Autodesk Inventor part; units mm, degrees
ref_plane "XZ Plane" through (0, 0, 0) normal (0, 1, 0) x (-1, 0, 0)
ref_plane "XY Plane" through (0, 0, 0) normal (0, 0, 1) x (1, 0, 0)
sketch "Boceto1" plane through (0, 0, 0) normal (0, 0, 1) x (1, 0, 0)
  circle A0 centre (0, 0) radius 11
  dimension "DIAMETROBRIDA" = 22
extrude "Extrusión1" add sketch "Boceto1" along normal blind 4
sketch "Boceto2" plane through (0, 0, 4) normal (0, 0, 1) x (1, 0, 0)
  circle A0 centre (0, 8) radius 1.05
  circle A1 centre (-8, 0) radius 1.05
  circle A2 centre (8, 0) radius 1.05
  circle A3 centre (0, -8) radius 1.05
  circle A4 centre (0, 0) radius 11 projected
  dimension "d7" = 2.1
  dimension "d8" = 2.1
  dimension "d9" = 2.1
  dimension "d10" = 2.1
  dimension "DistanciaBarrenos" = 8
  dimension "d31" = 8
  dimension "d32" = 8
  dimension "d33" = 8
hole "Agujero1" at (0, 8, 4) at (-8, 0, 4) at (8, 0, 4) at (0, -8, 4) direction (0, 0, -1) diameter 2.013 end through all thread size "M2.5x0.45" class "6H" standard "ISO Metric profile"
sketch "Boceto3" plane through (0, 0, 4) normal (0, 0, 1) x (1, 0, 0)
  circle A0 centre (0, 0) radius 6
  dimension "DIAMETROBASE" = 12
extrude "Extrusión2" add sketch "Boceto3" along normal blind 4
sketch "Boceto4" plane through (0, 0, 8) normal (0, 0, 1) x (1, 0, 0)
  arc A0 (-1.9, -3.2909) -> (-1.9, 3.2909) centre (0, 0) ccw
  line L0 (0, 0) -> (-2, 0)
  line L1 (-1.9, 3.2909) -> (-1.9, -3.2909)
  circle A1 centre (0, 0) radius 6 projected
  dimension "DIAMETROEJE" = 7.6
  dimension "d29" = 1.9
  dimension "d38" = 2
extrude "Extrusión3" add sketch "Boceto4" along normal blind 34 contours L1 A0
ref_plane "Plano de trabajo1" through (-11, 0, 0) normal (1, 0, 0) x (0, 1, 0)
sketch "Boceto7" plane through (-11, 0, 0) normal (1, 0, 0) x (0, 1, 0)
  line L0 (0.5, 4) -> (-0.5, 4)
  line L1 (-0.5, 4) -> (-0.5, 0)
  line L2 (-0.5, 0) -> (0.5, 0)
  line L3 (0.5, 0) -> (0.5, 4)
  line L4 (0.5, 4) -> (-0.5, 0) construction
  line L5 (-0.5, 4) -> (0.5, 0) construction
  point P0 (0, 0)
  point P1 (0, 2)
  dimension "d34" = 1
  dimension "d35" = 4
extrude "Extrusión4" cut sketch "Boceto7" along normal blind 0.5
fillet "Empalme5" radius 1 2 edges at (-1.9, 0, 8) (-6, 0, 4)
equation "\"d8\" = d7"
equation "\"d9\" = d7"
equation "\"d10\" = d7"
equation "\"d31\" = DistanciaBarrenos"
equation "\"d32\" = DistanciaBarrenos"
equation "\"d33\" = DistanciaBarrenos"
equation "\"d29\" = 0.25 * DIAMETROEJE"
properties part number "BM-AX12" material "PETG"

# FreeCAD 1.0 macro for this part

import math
import FreeCAD as App
import Part
import Sketcher
from FreeCAD import Vector


def edges_at(feature, points):
    """Names of the edges that pass closest to the given points."""
    edges = feature.Shape.Edges
    near = lambda p: min(range(len(edges)), key=lambda i: edges[i].distToShape(Part.Vertex(*p))[0])
    return sorted({f"Edge{near(p) + 1}" for p in points})

doc = App.newDocument("Part")
params = doc.addObject("Spreadsheet::Sheet", "Params")
for row, (alias, value) in enumerate([
    ("sketch1_diameter", "22 mm"),
    ("pad1_length", "4 mm"),
    ("hole_diameter", "2.013 mm"),
    ("sketch3_diameter", "12 mm"),
    ("pad2_length", "4 mm"),
    ("sketch4_radius", "3.8 mm"),
    ("pad3_length", "34 mm"),
    ("sketch5_width", "1 mm"),
    ("sketch5_height", "4 mm"),
    ("pocket1_length", "0.5 mm"),
    ("fillet_radius", "1 mm"),
], start=1):
    params.set(f"A{row}", alias)
    params.set(f"B{row}", "=" + value)
    params.setAlias(f"B{row}", alias)

body = doc.addObject("PartDesign::Body", "Body")

# Sketch on XY plane
sketch1 = body.newObject("Sketcher::SketchObject", "Sketch")
sketch1.AttachmentSupport = (doc.getObject("XY_Plane"), [""])
sketch1.MapMode = "FlatFace"
sketch1.addGeometry(Part.Circle(Vector(0, 0, 0), Vector(0, 0, 1), 11), False)
sketch1.addConstraint([
    Sketcher.Constraint("Coincident", 0, 3, -1, 1),
    Sketcher.Constraint("Diameter", 0, 22.0),
])
sketch1.setExpression("Constraints[1]", "Params.sketch1_diameter")
pad1 = body.newObject("PartDesign::Pad", "Pad")
pad1.Profile = sketch1
pad1.setExpression("Length", "Params.pad1_length")

# Sketch on XY plane
sketch2 = body.newObject("Sketcher::SketchObject", "Sketch001")
sketch2.AttachmentSupport = (doc.getObject("XY_Plane"), [""])
sketch2.MapMode = "FlatFace"
sketch2.AttachmentOffset = App.Placement(Vector(0, 0, 4), App.Rotation())
sketch2.addGeometry([
    Part.Circle(Vector(0, 8, 0), Vector(0, 0, 1), 1.0065),
    Part.Circle(Vector(-8, 0, 0), Vector(0, 0, 1), 1.0065),
    Part.Circle(Vector(8, 0, 0), Vector(0, 0, 1), 1.0065),
    Part.Circle(Vector(0, -8, 0), Vector(0, 0, 1), 1.0065),
], False)
sketch2.addConstraint([
    Sketcher.Constraint("Equal", 0, 1),
    Sketcher.Constraint("Equal", 1, 2),
    Sketcher.Constraint("Equal", 2, 3),
    Sketcher.Constraint("Symmetric", 1, 3, 2, 3, -1, 1),
    Sketcher.Constraint("Symmetric", 0, 3, 3, 3, -1, 1),
    Sketcher.Constraint("PointOnObject", 0, 3, -2),
    Sketcher.Constraint("PointOnObject", 1, 3, -1),
    Sketcher.Constraint("Diameter", 0, 2.013),
    Sketcher.Constraint("DistanceY", -1, 1, 0, 3, 8.0),
    Sketcher.Constraint("DistanceX", 1, 3, -1, 1, 8.0),
])
doc.recompute()
hole = body.newObject("PartDesign::Hole", "Hole")
hole.Profile = sketch2
hole.ThreadType = "None"
hole.setExpression("Diameter", "Params.hole_diameter")
hole.DepthType = "ThroughAll"

# Sketch on XY plane
sketch3 = body.newObject("Sketcher::SketchObject", "Sketch002")
sketch3.AttachmentSupport = (doc.getObject("XY_Plane"), [""])
sketch3.MapMode = "FlatFace"
sketch3.AttachmentOffset = App.Placement(Vector(0, 0, 4), App.Rotation())
sketch3.addGeometry(Part.Circle(Vector(0, 0, 0), Vector(0, 0, 1), 6), False)
sketch3.addConstraint([
    Sketcher.Constraint("Coincident", 0, 3, -1, 1),
    Sketcher.Constraint("Diameter", 0, 12.0),
])
sketch3.setExpression("Constraints[1]", "Params.sketch3_diameter")
pad2 = body.newObject("PartDesign::Pad", "Pad001")
pad2.Profile = sketch3
pad2.setExpression("Length", "Params.pad2_length")

# Sketch on XY plane
sketch4 = body.newObject("Sketcher::SketchObject", "Sketch003")
sketch4.AttachmentSupport = (doc.getObject("XY_Plane"), [""])
sketch4.MapMode = "FlatFace"
sketch4.AttachmentOffset = App.Placement(Vector(0, 0, 8), App.Rotation())
sketch4.addGeometry([
    Part.LineSegment(Vector(-1.9, 3.2909, 0), Vector(-1.9, -3.2909, 0)),
    Part.ArcOfCircle(Part.Circle(Vector(0, 0, 0), Vector(0, 0, 1), 3.800003), math.radians(-119.999974), math.radians(119.999974)),
], False)
sketch4.addConstraint([
    Sketcher.Constraint("Coincident", 0, 1, 1, 2),
    Sketcher.Constraint("Coincident", 1, 1, 0, 2),
    Sketcher.Constraint("Vertical", 0),
    Sketcher.Constraint("Coincident", 1, 3, -1, 1),
    Sketcher.Constraint("Radius", 1, 3.8),
    Sketcher.Constraint("DistanceX", 0, 1, -1, 1, 1.9),
])
sketch4.setExpression("Constraints[4]", "Params.sketch4_radius")
pad3 = body.newObject("PartDesign::Pad", "Pad002")
pad3.Profile = sketch4
pad3.setExpression("Length", "Params.pad3_length")

# Sketch on YZ plane
sketch5 = body.newObject("Sketcher::SketchObject", "Sketch004")
sketch5.AttachmentSupport = (doc.getObject("YZ_Plane"), [""])
sketch5.MapMode = "FlatFace"
sketch5.AttachmentOffset = App.Placement(Vector(0, 0, -11), App.Rotation())
sketch5.addGeometry([
    Part.LineSegment(Vector(0.5, 0, 0), Vector(0.5, 4, 0)),
    Part.LineSegment(Vector(0.5, 4, 0), Vector(-0.5, 4, 0)),
    Part.LineSegment(Vector(-0.5, 4, 0), Vector(-0.5, 0, 0)),
    Part.LineSegment(Vector(-0.5, 0, 0), Vector(0.5, 0, 0)),
], False)
sketch5.addConstraint([
    Sketcher.Constraint("Coincident", 0, 2, 1, 1),
    Sketcher.Constraint("Coincident", 1, 2, 2, 1),
    Sketcher.Constraint("Coincident", 2, 2, 3, 1),
    Sketcher.Constraint("Coincident", 3, 2, 0, 1),
    Sketcher.Constraint("Vertical", 0),
    Sketcher.Constraint("Horizontal", 1),
    Sketcher.Constraint("Vertical", 2),
    Sketcher.Constraint("Horizontal", 3),
    Sketcher.Constraint("Symmetric", 2, 2, 3, 2, -1, 1),
    Sketcher.Constraint("DistanceX", 1, 2, 1, 1, 1.0),
    Sketcher.Constraint("DistanceY", 0, 1, 0, 2, 4.0),
])
sketch5.setExpression("Constraints[9]", "Params.sketch5_width")
sketch5.setExpression("Constraints[10]", "Params.sketch5_height")
pocket1 = body.newObject("PartDesign::Pocket", "Pocket")
pocket1.Profile = sketch5
pocket1.setExpression("Length", "Params.pocket1_length")
pocket1.Reversed = True
doc.recompute()

fillet = body.newObject("PartDesign::Fillet", "Fillet")
fillet.Base = (pocket1, edges_at(pocket1, [(-1.9, 0, 8), (-6, 0, 4)]))
fillet.setExpression("Radius", "Params.fillet_radius")

doc.recompute()
